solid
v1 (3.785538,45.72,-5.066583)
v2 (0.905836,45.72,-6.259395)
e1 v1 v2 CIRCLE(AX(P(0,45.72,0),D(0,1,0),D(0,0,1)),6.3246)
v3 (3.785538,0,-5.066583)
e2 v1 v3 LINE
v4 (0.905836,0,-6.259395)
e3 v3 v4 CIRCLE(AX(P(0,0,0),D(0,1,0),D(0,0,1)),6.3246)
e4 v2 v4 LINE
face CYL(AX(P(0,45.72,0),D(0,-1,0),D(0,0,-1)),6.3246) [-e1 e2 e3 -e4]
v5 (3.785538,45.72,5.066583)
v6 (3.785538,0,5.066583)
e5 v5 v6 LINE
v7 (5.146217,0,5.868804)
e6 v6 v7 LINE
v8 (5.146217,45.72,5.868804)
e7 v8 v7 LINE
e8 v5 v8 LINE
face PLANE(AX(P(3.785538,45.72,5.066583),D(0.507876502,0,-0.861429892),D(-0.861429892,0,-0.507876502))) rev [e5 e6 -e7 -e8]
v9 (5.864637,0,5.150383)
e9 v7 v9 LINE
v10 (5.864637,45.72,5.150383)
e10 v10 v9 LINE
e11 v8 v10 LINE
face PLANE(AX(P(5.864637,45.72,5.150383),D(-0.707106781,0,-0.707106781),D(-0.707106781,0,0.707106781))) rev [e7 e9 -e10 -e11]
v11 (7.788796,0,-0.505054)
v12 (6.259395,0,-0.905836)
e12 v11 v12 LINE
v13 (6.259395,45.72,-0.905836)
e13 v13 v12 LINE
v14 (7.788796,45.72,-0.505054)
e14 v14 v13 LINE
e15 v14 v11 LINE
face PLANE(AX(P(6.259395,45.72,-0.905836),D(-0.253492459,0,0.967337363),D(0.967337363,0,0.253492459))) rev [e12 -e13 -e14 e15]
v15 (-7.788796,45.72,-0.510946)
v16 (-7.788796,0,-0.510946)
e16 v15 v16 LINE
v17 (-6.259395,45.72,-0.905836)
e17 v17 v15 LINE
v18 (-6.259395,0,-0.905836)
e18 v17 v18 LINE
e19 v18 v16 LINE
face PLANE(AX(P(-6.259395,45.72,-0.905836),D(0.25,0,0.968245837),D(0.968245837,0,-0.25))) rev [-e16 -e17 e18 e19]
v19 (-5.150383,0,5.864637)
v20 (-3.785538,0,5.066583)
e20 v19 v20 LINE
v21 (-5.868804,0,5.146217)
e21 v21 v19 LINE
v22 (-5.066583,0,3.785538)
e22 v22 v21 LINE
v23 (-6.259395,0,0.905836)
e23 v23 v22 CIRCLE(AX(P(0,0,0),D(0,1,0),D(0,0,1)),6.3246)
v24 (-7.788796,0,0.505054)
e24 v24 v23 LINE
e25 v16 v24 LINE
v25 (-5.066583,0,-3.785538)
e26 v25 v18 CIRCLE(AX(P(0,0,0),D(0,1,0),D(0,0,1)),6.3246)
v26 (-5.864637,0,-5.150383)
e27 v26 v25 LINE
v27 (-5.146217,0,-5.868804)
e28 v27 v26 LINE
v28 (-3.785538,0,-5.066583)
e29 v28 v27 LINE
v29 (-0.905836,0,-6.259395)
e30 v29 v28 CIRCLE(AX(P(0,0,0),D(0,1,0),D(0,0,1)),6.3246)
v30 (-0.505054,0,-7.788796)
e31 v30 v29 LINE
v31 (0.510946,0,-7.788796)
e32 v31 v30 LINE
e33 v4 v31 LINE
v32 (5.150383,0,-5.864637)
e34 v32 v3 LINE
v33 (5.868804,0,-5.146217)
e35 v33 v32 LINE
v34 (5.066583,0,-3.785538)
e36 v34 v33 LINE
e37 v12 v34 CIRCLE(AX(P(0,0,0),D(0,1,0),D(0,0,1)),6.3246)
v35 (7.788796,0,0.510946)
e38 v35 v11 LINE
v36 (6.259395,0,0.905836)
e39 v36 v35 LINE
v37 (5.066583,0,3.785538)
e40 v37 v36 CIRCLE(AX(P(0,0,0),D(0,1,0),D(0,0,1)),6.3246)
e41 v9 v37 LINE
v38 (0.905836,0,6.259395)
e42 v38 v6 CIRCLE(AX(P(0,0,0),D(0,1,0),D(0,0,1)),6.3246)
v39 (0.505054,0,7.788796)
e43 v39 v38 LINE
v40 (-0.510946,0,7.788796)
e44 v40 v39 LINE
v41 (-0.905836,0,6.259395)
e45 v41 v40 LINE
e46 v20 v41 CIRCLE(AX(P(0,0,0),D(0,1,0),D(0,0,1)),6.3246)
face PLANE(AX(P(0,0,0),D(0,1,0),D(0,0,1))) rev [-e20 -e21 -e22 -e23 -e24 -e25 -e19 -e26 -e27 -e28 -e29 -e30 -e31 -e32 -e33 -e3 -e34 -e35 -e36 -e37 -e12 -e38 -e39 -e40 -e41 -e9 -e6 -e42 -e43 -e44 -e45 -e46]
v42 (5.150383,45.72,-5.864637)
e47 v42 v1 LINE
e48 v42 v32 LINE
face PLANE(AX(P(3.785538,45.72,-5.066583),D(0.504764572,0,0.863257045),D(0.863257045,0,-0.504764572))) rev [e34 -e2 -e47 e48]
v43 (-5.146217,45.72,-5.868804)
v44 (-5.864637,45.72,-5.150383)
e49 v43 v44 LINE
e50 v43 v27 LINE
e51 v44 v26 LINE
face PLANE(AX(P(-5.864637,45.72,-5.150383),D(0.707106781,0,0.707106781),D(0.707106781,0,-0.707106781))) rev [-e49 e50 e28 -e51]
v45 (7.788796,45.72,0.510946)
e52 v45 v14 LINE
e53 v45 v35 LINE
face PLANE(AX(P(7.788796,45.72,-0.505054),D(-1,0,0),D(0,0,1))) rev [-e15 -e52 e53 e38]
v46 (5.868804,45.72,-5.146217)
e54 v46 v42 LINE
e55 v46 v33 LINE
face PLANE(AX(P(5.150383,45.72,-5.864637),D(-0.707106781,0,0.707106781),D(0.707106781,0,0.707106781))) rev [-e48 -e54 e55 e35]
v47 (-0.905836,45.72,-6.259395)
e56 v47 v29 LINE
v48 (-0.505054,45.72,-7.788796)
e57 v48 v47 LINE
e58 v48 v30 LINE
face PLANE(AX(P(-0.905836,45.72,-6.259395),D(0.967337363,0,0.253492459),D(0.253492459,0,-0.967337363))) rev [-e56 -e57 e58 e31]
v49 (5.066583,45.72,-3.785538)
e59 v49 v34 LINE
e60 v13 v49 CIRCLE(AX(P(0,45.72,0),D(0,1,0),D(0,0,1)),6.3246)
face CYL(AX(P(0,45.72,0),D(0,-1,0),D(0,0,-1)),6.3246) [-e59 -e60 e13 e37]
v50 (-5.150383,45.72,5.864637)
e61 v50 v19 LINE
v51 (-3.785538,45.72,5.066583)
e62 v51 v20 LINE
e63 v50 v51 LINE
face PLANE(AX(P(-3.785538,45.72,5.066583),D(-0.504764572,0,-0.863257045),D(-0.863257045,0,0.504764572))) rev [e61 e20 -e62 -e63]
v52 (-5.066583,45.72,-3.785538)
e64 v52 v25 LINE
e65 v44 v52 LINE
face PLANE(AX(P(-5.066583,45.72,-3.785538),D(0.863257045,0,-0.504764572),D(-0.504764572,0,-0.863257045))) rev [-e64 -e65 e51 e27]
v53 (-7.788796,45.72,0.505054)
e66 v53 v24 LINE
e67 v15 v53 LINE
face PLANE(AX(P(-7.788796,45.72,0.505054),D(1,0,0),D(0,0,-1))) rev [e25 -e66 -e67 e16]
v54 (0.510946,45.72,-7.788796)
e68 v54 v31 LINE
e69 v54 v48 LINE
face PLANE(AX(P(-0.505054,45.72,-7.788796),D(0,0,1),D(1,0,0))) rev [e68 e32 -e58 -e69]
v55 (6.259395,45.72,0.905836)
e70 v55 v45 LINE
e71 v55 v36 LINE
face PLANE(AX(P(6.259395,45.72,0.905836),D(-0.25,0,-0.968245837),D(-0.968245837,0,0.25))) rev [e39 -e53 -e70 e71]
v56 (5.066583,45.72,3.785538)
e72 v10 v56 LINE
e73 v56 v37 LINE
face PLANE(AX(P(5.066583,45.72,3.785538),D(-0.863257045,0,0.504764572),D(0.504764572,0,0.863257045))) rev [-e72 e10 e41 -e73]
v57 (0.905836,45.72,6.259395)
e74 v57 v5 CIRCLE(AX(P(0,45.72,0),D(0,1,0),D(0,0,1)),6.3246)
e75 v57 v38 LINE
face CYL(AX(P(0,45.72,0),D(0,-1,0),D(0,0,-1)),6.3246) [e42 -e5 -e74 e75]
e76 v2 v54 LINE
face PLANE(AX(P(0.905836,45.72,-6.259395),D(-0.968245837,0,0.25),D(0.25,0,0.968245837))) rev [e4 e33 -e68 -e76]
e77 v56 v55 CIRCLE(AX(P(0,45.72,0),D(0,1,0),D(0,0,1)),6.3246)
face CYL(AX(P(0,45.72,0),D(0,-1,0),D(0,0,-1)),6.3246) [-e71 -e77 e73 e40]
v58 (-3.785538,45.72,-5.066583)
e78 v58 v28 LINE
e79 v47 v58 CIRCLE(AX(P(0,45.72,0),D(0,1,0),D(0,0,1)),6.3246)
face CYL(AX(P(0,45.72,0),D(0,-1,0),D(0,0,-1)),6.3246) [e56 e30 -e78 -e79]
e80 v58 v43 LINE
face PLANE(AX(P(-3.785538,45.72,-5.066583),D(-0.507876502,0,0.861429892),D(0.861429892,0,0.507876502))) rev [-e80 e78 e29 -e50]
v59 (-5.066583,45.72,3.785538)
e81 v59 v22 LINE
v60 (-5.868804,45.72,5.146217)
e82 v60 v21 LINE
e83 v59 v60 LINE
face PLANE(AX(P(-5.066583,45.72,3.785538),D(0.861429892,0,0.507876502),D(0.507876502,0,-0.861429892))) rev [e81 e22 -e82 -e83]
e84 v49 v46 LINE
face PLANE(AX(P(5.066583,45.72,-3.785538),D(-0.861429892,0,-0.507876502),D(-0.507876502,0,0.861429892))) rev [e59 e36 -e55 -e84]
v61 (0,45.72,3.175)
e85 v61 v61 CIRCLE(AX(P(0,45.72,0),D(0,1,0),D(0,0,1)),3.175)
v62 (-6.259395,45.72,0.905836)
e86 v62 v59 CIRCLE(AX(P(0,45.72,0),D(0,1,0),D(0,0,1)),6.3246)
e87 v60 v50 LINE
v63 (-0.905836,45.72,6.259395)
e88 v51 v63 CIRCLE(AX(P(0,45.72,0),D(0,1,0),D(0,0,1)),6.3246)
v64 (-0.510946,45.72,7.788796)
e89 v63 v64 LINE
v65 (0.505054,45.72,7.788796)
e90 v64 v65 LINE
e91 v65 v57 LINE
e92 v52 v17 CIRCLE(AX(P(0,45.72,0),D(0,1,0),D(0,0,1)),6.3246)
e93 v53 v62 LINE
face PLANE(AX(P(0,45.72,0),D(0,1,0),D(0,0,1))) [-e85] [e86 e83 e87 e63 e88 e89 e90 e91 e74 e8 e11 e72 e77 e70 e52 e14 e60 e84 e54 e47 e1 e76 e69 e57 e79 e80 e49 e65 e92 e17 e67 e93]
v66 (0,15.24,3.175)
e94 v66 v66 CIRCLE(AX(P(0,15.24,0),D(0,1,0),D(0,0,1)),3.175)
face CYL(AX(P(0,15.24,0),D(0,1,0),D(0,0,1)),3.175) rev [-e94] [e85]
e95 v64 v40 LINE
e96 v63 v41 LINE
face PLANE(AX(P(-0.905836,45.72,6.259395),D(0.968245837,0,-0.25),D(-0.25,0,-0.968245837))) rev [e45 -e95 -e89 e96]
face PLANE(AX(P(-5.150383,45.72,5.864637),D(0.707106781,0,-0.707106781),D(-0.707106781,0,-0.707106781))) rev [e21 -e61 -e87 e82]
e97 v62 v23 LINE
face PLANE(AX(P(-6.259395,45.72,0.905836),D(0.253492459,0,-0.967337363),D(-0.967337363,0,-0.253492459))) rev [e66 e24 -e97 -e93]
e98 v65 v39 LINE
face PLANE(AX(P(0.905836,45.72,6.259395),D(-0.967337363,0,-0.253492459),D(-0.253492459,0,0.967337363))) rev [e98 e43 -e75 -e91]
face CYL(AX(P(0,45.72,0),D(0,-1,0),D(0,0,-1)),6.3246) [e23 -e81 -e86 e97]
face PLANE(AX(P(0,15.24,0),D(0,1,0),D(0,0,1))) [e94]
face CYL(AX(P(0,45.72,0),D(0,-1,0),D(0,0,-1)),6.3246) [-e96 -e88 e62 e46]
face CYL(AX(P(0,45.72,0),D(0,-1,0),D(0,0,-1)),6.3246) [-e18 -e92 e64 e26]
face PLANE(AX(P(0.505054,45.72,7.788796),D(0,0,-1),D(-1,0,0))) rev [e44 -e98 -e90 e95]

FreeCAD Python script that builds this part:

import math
import FreeCAD as App
import Part
import Sketcher
from FreeCAD import Vector
Q = App.Units.Quantity

doc = App.newDocument("Part")
body = doc.addObject("PartDesign::Body", "Body")

sketch1 = body.newObject("Sketcher::SketchObject", "Sketch")
sketch1.AttachmentSupport = (doc.getObject("XZ_Plane"), [""])
sketch1.MapMode = "FlatFace"
sketch1.addGeometry([
    Part.LineSegment(Vector(-0.5, -7.8, 0), Vector(-0.9, -6.3, 0)),
    Part.ArcOfCircle(Part.Circle(Vector(0, 0, 0), Vector(0, 0, 1), 6.3), math.radians(-127), math.radians(-98)),
    Part.LineSegment(Vector(-3.8, -5.1, 0), Vector(-5.1, -5.9, 0)),
    Part.LineSegment(Vector(-5.1, -5.9, 0), Vector(-5.9, -5.2, 0)),
    Part.LineSegment(Vector(-5.9, -5.2, 0), Vector(-5.1, -3.8, 0)),
    Part.ArcOfCircle(Part.Circle(Vector(0, 0, 0), Vector(0, 0, 1), 6.3), math.radians(-172), math.radians(-143)),
    Part.LineSegment(Vector(-6.3, -0.9, 0), Vector(-7.8, -0.5, 0)),
    Part.LineSegment(Vector(-7.8, -0.5, 0), Vector(-7.8, 0.5, 0)),
    Part.LineSegment(Vector(-7.8, 0.5, 0), Vector(-6.3, 0.9, 0)),
    Part.ArcOfCircle(Part.Circle(Vector(0, 0, 0), Vector(0, 0, 1), 6.3), math.radians(143), math.radians(172)),
    Part.LineSegment(Vector(-5.1, 3.8, 0), Vector(-5.9, 5.1, 0)),
    Part.LineSegment(Vector(-5.9, 5.1, 0), Vector(-5.2, 5.9, 0)),
    Part.LineSegment(Vector(-5.2, 5.9, 0), Vector(-3.8, 5.1, 0)),
    Part.ArcOfCircle(Part.Circle(Vector(0, 0, 0), Vector(0, 0, 1), 6.3), math.radians(98), math.radians(127)),
    Part.LineSegment(Vector(-0.9, 6.3, 0), Vector(-0.5, 7.8, 0)),
    Part.LineSegment(Vector(-0.5, 7.8, 0), Vector(0.5, 7.8, 0)),
    Part.LineSegment(Vector(0.5, 7.8, 0), Vector(0.9, 6.3, 0)),
    Part.ArcOfCircle(Part.Circle(Vector(0, 0, 0), Vector(0, 0, 1), 6.3), math.radians(53), math.radians(82)),
    Part.LineSegment(Vector(3.8, 5.1, 0), Vector(5.1, 5.9, 0)),
    Part.LineSegment(Vector(5.1, 5.9, 0), Vector(5.9, 5.2, 0)),
    Part.LineSegment(Vector(5.9, 5.2, 0), Vector(5.1, 3.8, 0)),
    Part.ArcOfCircle(Part.Circle(Vector(0, 0, 0), Vector(0, 0, 1), 6.3), math.radians(8), math.radians(37)),
    Part.LineSegment(Vector(6.3, 0.9, 0), Vector(7.8, 0.5, 0)),
    Part.LineSegment(Vector(7.8, 0.5, 0), Vector(7.8, -0.5, 0)),
    Part.LineSegment(Vector(7.8, -0.5, 0), Vector(6.3, -0.9, 0)),
    Part.ArcOfCircle(Part.Circle(Vector(0, 0, 0), Vector(0, 0, 1), 6.3), math.radians(-37), math.radians(-8)),
    Part.LineSegment(Vector(5.1, -3.8, 0), Vector(5.9, -5.1, 0)),
    Part.LineSegment(Vector(5.9, -5.1, 0), Vector(5.2, -5.9, 0)),
    Part.LineSegment(Vector(5.2, -5.9, 0), Vector(3.8, -5.1, 0)),
    Part.ArcOfCircle(Part.Circle(Vector(0, 0, 0), Vector(0, 0, 1), 6.3), math.radians(-82), math.radians(-53)),
    Part.LineSegment(Vector(0.9, -6.3, 0), Vector(0.5, -7.8, 0)),
    Part.LineSegment(Vector(0.5, -7.8, 0), Vector(-0.5, -7.8, 0)),
], False)
sketch1.addConstraint([
    Sketcher.Constraint("Coincident", 0, 2, 1, 2),
    Sketcher.Constraint("Coincident", 1, 1, 2, 1),
    Sketcher.Constraint("Coincident", 2, 2, 3, 1),
    Sketcher.Constraint("Coincident", 3, 2, 4, 1),
    Sketcher.Constraint("Coincident", 4, 2, 5, 2),
    Sketcher.Constraint("Coincident", 5, 1, 6, 1),
    Sketcher.Constraint("Coincident", 6, 2, 7, 1),
    Sketcher.Constraint("Coincident", 7, 2, 8, 1),
    Sketcher.Constraint("Coincident", 8, 2, 9, 2),
    Sketcher.Constraint("Coincident", 9, 1, 10, 1),
    Sketcher.Constraint("Coincident", 10, 2, 11, 1),
    Sketcher.Constraint("Coincident", 11, 2, 12, 1),
    Sketcher.Constraint("Coincident", 12, 2, 13, 2),
    Sketcher.Constraint("Coincident", 13, 1, 14, 1),
    Sketcher.Constraint("Coincident", 14, 2, 15, 1),
    Sketcher.Constraint("Coincident", 15, 2, 16, 1),
    Sketcher.Constraint("Coincident", 16, 2, 17, 2),
    Sketcher.Constraint("Coincident", 17, 1, 18, 1),
    Sketcher.Constraint("Coincident", 18, 2, 19, 1),
    Sketcher.Constraint("Coincident", 19, 2, 20, 1),
    Sketcher.Constraint("Coincident", 20, 2, 21, 2),
    Sketcher.Constraint("Coincident", 21, 1, 22, 1),
    Sketcher.Constraint("Coincident", 22, 2, 23, 1),
    Sketcher.Constraint("Coincident", 23, 2, 24, 1),
    Sketcher.Constraint("Coincident", 24, 2, 25, 2),
    Sketcher.Constraint("Coincident", 25, 1, 26, 1),
    Sketcher.Constraint("Coincident", 26, 2, 27, 1),
    Sketcher.Constraint("Coincident", 27, 2, 28, 1),
    Sketcher.Constraint("Coincident", 28, 2, 29, 2),
    Sketcher.Constraint("Coincident", 29, 1, 30, 1),
    Sketcher.Constraint("Coincident", 30, 2, 31, 1),
    Sketcher.Constraint("Coincident", 31, 2, 0, 1),
    Sketcher.Constraint("Vertical", 7),
    Sketcher.Constraint("Horizontal", 15),
    Sketcher.Constraint("Vertical", 23),
    Sketcher.Constraint("Horizontal", 31),
    Sketcher.Constraint("Coincident", 1, 3, -1, 1),
    Sketcher.Constraint("Coincident", 5, 3, -1, 1),
    Sketcher.Constraint("Coincident", 9, 3, -1, 1),
    Sketcher.Constraint("Coincident", 13, 3, -1, 1),
    Sketcher.Constraint("Coincident", 17, 3, -1, 1),
    Sketcher.Constraint("Coincident", 21, 3, -1, 1),
    Sketcher.Constraint("Coincident", 25, 3, -1, 1),
    Sketcher.Constraint("Coincident", 29, 3, -1, 1),
    Sketcher.Constraint("Equal", 1, 5),
    Sketcher.Constraint("Equal", 5, 9),
    Sketcher.Constraint("Equal", 9, 13),
    Sketcher.Constraint("Equal", 13, 17),
    Sketcher.Constraint("Equal", 17, 21),
    Sketcher.Constraint("Equal", 21, 25),
    Sketcher.Constraint("Equal", 25, 29),
    Sketcher.Constraint("Symmetric", 2, 2, 18, 2, -1, 1),
    Sketcher.Constraint("Symmetric", 3, 2, 19, 2, -1, 1),
    Sketcher.Constraint("Symmetric", 6, 2, 22, 2, -1, 1),
    Sketcher.Constraint("Symmetric", 10, 2, 26, 2, -1, 1),
    Sketcher.Constraint("Symmetric", 11, 2, 27, 2, -1, 1),
    Sketcher.Constraint("Symmetric", 14, 2, 30, 2, -1, 1),
    Sketcher.Constraint("Perpendicular", 0, 8),
    Sketcher.Constraint("Perpendicular", 2, 10),
    Sketcher.Constraint("Perpendicular", 3, 11),
    Sketcher.Constraint("Perpendicular", 4, 12),
    Sketcher.Constraint("Perpendicular", 6, 14),
    Sketcher.Constraint("Perpendicular", 8, 16),
    Sketcher.Constraint("Perpendicular", 10, 18),
    Sketcher.Constraint("Perpendicular", 12, 20),
    Sketcher.Constraint("Perpendicular", 14, 22),
    Sketcher.Constraint("Perpendicular", 16, 24),
    Sketcher.Constraint("Perpendicular", 18, 26),
    Sketcher.Constraint("Perpendicular", 20, 28),
    Sketcher.Constraint("Perpendicular", 22, 30),
    Sketcher.Constraint("Horizontal", 13, 1, 16, 2),
    Sketcher.Constraint("Horizontal", 12, 2, 17, 1),
    Sketcher.Constraint("Horizontal", 9, 1, 20, 2),
    Sketcher.Constraint("Horizontal", 8, 2, 21, 1),
    Sketcher.Constraint("Horizontal", 5, 1, 24, 2),
    Sketcher.Constraint("Horizontal", 0, 2, 29, 1),
    Sketcher.Constraint("Equal", 31, 7),
    Sketcher.Constraint("Equal", 0, 4),
    Sketcher.Constraint("Equal", 2, 6),
    Sketcher.Constraint("Equal", 4, 8),
    Sketcher.Constraint("Equal", 6, 10),
    Sketcher.Constraint("Equal", 3, 11),
    Sketcher.Constraint("Angle", 3, Q("135 deg")),
    Sketcher.Constraint("Radius", 1, Q("0.249 in")),
    Sketcher.Constraint("DistanceX", 15, 1, 15, 2, Q("0.04 in")),
    Sketcher.Constraint("Distance", 3, Q("0.04 in")),
    Sketcher.Constraint("DistanceX", 3, 2, 1, 1, Q("2.079099 mm")),
    Sketcher.Constraint("DistanceY", 3, 2, 1, 1, Q("0.0838 mm")),
    Sketcher.Constraint("DistanceX", 3, 2, 0, 2, Q("4.958801 mm")),
    Sketcher.Constraint("DistanceX", 6, 2, 5, 1, Q("1.529401 mm")),
])
pad1 = body.newObject("PartDesign::Pad", "Pad")
pad1.Profile = sketch1
pad1.Length = Q("1.8 in")
pad1.Reversed = True

sketch2 = body.newObject("Sketcher::SketchObject", "Sketch001")
sketch2.AttachmentSupport = (doc.getObject("XZ_Plane"), [""])
sketch2.MapMode = "FlatFace"
sketch2.AttachmentOffset = App.Placement(Vector(0, 0, -1.8 * 25.4), App.Rotation())
sketch2.addGeometry(Part.Circle(Vector(0, 0, 0), Vector(0, 0, 1), 3.2), False)
sketch2.addConstraint([
    Sketcher.Constraint("Coincident", 0, 3, -1, 1),
    Sketcher.Constraint("Diameter", 0, Q("0.25 in")),
])
pocket1 = body.newObject("PartDesign::Pocket", "Pocket")
pocket1.Profile = sketch2
pocket1.Length = Q("1.2 in")
pocket1.Reversed = True

doc.recompute()
